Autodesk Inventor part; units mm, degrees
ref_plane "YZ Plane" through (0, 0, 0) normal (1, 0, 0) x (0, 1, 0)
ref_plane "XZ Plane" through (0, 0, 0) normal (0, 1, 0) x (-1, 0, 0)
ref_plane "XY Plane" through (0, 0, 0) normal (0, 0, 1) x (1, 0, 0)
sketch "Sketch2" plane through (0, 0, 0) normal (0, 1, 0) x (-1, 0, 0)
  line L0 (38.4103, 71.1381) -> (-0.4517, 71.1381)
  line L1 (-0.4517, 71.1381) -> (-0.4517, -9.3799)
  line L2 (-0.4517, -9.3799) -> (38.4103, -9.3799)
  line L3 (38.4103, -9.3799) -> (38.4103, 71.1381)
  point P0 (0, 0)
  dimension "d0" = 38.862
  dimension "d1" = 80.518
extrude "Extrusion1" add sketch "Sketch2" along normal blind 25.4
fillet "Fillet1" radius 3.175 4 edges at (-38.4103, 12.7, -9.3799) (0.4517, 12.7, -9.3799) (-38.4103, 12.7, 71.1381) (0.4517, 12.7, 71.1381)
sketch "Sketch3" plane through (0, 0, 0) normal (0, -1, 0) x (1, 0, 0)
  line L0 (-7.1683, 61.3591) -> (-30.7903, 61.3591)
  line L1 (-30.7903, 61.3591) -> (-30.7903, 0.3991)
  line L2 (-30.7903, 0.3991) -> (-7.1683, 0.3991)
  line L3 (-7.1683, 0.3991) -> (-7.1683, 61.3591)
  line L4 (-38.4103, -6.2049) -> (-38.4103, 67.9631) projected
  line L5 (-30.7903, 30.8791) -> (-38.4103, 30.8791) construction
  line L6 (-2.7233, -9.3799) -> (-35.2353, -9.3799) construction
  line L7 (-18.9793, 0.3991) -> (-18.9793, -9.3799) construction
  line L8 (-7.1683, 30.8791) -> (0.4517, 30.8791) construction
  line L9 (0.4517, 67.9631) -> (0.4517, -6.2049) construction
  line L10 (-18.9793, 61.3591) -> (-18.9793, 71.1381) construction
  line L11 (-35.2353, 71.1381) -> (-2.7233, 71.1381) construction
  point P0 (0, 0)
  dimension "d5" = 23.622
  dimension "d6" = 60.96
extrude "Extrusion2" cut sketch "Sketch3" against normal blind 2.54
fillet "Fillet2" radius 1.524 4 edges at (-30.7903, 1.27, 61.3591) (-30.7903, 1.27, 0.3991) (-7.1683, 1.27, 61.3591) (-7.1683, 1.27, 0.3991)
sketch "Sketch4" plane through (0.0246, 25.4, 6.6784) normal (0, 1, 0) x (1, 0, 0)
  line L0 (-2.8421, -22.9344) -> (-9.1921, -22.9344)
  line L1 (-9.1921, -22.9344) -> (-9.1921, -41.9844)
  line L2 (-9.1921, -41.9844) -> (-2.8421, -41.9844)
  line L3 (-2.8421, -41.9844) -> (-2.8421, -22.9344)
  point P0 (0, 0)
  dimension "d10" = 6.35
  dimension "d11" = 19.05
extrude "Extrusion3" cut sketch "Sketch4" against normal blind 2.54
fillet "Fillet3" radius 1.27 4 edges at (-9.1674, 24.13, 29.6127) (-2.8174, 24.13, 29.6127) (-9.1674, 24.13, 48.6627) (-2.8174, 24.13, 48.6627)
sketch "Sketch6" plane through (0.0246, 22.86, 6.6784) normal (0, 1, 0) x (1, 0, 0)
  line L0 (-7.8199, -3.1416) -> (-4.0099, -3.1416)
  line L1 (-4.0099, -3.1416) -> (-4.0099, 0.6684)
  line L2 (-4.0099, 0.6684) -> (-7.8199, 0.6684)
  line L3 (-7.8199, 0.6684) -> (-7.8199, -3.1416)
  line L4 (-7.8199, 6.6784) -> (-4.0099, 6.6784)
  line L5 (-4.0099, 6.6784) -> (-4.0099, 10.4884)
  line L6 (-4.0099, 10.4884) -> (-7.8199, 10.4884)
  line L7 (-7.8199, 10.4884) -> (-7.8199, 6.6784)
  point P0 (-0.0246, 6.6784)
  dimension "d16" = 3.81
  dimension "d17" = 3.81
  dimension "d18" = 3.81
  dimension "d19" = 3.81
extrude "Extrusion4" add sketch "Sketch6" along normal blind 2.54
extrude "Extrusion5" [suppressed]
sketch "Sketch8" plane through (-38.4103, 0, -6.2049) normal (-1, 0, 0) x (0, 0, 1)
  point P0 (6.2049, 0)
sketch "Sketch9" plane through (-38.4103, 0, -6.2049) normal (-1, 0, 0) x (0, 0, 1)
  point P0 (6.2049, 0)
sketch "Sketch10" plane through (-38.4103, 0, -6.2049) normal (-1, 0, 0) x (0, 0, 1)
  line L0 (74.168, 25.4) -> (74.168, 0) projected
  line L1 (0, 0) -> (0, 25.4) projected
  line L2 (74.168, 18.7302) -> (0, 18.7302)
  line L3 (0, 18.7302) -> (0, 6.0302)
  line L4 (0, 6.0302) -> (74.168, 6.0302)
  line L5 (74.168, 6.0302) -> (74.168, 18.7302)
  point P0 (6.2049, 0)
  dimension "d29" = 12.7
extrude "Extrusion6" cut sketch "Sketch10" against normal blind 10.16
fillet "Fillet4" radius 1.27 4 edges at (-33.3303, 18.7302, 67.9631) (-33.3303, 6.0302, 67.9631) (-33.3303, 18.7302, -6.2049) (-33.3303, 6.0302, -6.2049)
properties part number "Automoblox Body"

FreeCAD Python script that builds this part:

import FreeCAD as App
import Part
import Sketcher
from FreeCAD import Vector
Q = App.Units.Quantity


def edges_at(feature, points):
    """Names of the edges that pass closest to the given points."""
    edges = feature.Shape.Edges
    near = lambda p: min(range(len(edges)), key=lambda i: edges[i].distToShape(Part.Vertex(*p))[0])
    return sorted({f"Edge{near(p) + 1}" for p in points})


def add_polygon(sketch, points):
    """Adds a closed chain of lines whose ends are joined by coincident constraints."""
    first, n = sketch.GeometryCount, len(points)
    for a, b in zip(points, points[1:] + points[:1]):
        sketch.addGeometry(Part.LineSegment(App.Vector(*a, 0), App.Vector(*b, 0)), False)
    for i in range(n):
        sketch.addConstraint(Sketcher.Constraint("Coincident", first + i, 2, first + (i + 1) % n, 1))

doc = App.newDocument("Part")
body = doc.addObject("PartDesign::Body", "Body")

sketch1 = body.newObject("Sketcher::SketchObject", "Sketch")
sketch1.AttachmentSupport = (doc.getObject("XZ_Plane"), [""])
sketch1.MapMode = "FlatFace"
add_polygon(sketch1, [(-38, -9), (-38, 71), (0, 71), (0, -9)])
sketch1.addConstraint([
    Sketcher.Constraint("Vertical", 0),
    Sketcher.Constraint("Horizontal", 1),
    Sketcher.Constraint("Vertical", 2),
    Sketcher.Constraint("Horizontal", 3),
    Sketcher.Constraint("DistanceX", 1, 1, 1, 2, Q("1.53 in")),
    Sketcher.Constraint("DistanceY", 0, 1, 0, 2, Q("3.17 in")),
    Sketcher.Constraint("DistanceX", 0, 2, -1, 1, 38.4103),
    Sketcher.Constraint("DistanceY", -1, 1, 0, 2, Q("2.8007087 in")),
])
pad1 = body.newObject("PartDesign::Pad", "Pad")
pad1.Profile = sketch1
pad1.Length = Q("1 in")
pad1.Reversed = True
doc.recompute()

fillet = body.newObject("PartDesign::Fillet", "Fillet")
fillet.Base = (pad1, edges_at(pad1, [
    (-38.41, 12.7, -9.38),
    (0.452, 12.7, -9.38),
    (-38.41, 12.7, 71.138),
    (0.452, 12.7, 71.138),
]))
fillet.Radius = Q("0.125 in")

sketch2 = body.newObject("Sketcher::SketchObject", "Sketch001")
sketch2.AttachmentSupport = (doc.getObject("XZ_Plane"), [""])
sketch2.MapMode = "FlatFace"
add_polygon(sketch2, [(-7, 0), (-7, 61), (-31, 61), (-31, 0)])
sketch2.addConstraint([
    Sketcher.Constraint("Vertical", 0),
    Sketcher.Constraint("Horizontal", 1),
    Sketcher.Constraint("Vertical", 2),
    Sketcher.Constraint("Horizontal", 3),
    Sketcher.Constraint("DistanceY", 0, 1, 0, 2, Q("2.4 in")),
    Sketcher.Constraint("DistanceX", 1, 2, 1, 1, Q("0.93 in")),
    Sketcher.Constraint("DistanceX", 0, 2, -1, 1, 7.1683),
    Sketcher.Constraint("DistanceY", -1, 1, 0, 2, Q("2.4157087 in")),
])
pocket1 = body.newObject("PartDesign::Pocket", "Pocket")
pocket1.Profile = sketch2
pocket1.Length = Q("0.1 in")
doc.recompute()

fillet2 = body.newObject("PartDesign::Fillet", "Fillet001")
fillet2.Base = (pocket1, edges_at(pocket1, [
    (-30.79, 1.27, 61.359),
    (-30.79, 1.27, 0.399),
    (-7.168, 1.27, 61.359),
    (-7.168, 1.27, 0.399),
]))
fillet2.Radius = Q("0.06 in")

sketch3 = body.newObject("Sketcher::SketchObject", "Sketch002")
sketch3.AttachmentSupport = (doc.getObject("XZ_Plane"), [""])
sketch3.MapMode = "FlatFace"
sketch3.AttachmentOffset = App.Placement(Vector(0, 0, -1 * 25.4), App.Rotation())
add_polygon(sketch3, [(-3, 49), (-3, 30), (-9, 30), (-9, 49)])
sketch3.addConstraint([
    Sketcher.Constraint("Vertical", 0),
    Sketcher.Constraint("Horizontal", 1),
    Sketcher.Constraint("Vertical", 2),
    Sketcher.Constraint("Horizontal", 3),
    Sketcher.Constraint("DistanceX", 1, 2, 1, 1, Q("0.25 in")),
    Sketcher.Constraint("DistanceY", 0, 2, 0, 1, Q("0.75 in")),
    Sketcher.Constraint("DistanceX", 0, 2, -1, 1, 2.8175),
    Sketcher.Constraint("DistanceY", -1, 1, 0, 2, 29.6128),
])
pocket2 = body.newObject("PartDesign::Pocket", "Pocket001")
pocket2.Profile = sketch3
pocket2.Length = Q("0.1 in")
pocket2.Reversed = True
doc.recompute()

fillet3 = body.newObject("PartDesign::Fillet", "Fillet002")
fillet3.Base = (pocket2, edges_at(pocket2, [
    (-9.167, 24.13, 29.613),
    (-2.817, 24.13, 29.613),
    (-9.167, 24.13, 48.663),
    (-2.817, 24.13, 48.663),
]))
fillet3.Radius = Q("0.05 in")

sketch4 = body.newObject("Sketcher::SketchObject", "Sketch003")
sketch4.AttachmentSupport = (doc.getObject("XZ_Plane"), [""])
sketch4.MapMode = "FlatFace"
sketch4.AttachmentOffset = App.Placement(Vector(0, 0, -0.9 * 25.4), App.Rotation())
add_polygon(sketch4, [(-7.8, 6), (-7.8, 9.8), (-4, 9.8), (-4, 6)])
add_polygon(sketch4, [(-7.8, -3.8), (-7.8, 0), (-4, 0), (-4, -3.8)])
sketch4.addConstraint([
    Sketcher.Constraint("Vertical", 0),
    Sketcher.Constraint("Horizontal", 1),
    Sketcher.Constraint("Vertical", 2),
    Sketcher.Constraint("Horizontal", 3),
    Sketcher.Constraint("Vertical", 4),
    Sketcher.Constraint("Horizontal", 5),
    Sketcher.Constraint("Vertical", 6),
    Sketcher.Constraint("Horizontal", 7),
    Sketcher.Constraint("PointOnObject", 4, 2, -1),
    Sketcher.Constraint("Vertical", 3, 2, 4, 2),
    Sketcher.Constraint("Vertical", 2, 2, 5, 2),
    Sketcher.Constraint("Equal", 7, 0),
    Sketcher.Constraint("Equal", 2, 4),
    Sketcher.Constraint("DistanceX", 1, 1, 1, 2, Q("0.15 in")),
    Sketcher.Constraint("DistanceX", 0, 2, -1, 1, Q("0.3069 in")),
    Sketcher.Constraint("DistanceY", -1, 1, 0, 2, 9.82),
])
pad2 = body.newObject("PartDesign::Pad", "Pad001")
pad2.Profile = sketch4
pad2.Length = Q("0.1 in")
pad2.Reversed = True

sketch5 = body.newObject("Sketcher::SketchObject", "Sketch004")
sketch5.AttachmentSupport = (doc.getObject("YZ_Plane"), [""])
sketch5.MapMode = "FlatFace"
sketch5.AttachmentOffset = App.Placement(Vector(0, 0, -38.4103), App.Rotation())
add_polygon(sketch5, [(6, 68), (19, 68), (19, -6), (6, -6)])
sketch5.addConstraint([
    Sketcher.Constraint("Horizontal", 0),
    Sketcher.Constraint("Vertical", 1),
    Sketcher.Constraint("Horizontal", 2),
    Sketcher.Constraint("Vertical", 3),
    Sketcher.Constraint("DistanceX", 0, 1, 0, 2, Q("0.5 in")),
    Sketcher.Constraint("DistanceY", 1, 2, 1, 1, Q("2.92 in")),
    Sketcher.Constraint("DistanceX", -1, 1, 0, 2, Q("0.7374 in")),
    Sketcher.Constraint("DistanceY", -1, 1, 0, 2, Q("2.6757087 in")),
])
pocket3 = body.newObject("PartDesign::Pocket", "Pocket002")
pocket3.Profile = sketch5
pocket3.Length = Q("0.4 in")
pocket3.Reversed = True
doc.recompute()

fillet4 = body.newObject("PartDesign::Fillet", "Fillet003")
fillet4.Base = (pocket3, edges_at(pocket3, [
    (-33.33, 18.73, 67.963),
    (-33.33, 6.03, 67.963),
    (-33.33, 18.73, -6.205),
    (-33.33, 6.03, -6.205),
]))
fillet4.Radius = Q("0.05 in")

doc.recompute()
